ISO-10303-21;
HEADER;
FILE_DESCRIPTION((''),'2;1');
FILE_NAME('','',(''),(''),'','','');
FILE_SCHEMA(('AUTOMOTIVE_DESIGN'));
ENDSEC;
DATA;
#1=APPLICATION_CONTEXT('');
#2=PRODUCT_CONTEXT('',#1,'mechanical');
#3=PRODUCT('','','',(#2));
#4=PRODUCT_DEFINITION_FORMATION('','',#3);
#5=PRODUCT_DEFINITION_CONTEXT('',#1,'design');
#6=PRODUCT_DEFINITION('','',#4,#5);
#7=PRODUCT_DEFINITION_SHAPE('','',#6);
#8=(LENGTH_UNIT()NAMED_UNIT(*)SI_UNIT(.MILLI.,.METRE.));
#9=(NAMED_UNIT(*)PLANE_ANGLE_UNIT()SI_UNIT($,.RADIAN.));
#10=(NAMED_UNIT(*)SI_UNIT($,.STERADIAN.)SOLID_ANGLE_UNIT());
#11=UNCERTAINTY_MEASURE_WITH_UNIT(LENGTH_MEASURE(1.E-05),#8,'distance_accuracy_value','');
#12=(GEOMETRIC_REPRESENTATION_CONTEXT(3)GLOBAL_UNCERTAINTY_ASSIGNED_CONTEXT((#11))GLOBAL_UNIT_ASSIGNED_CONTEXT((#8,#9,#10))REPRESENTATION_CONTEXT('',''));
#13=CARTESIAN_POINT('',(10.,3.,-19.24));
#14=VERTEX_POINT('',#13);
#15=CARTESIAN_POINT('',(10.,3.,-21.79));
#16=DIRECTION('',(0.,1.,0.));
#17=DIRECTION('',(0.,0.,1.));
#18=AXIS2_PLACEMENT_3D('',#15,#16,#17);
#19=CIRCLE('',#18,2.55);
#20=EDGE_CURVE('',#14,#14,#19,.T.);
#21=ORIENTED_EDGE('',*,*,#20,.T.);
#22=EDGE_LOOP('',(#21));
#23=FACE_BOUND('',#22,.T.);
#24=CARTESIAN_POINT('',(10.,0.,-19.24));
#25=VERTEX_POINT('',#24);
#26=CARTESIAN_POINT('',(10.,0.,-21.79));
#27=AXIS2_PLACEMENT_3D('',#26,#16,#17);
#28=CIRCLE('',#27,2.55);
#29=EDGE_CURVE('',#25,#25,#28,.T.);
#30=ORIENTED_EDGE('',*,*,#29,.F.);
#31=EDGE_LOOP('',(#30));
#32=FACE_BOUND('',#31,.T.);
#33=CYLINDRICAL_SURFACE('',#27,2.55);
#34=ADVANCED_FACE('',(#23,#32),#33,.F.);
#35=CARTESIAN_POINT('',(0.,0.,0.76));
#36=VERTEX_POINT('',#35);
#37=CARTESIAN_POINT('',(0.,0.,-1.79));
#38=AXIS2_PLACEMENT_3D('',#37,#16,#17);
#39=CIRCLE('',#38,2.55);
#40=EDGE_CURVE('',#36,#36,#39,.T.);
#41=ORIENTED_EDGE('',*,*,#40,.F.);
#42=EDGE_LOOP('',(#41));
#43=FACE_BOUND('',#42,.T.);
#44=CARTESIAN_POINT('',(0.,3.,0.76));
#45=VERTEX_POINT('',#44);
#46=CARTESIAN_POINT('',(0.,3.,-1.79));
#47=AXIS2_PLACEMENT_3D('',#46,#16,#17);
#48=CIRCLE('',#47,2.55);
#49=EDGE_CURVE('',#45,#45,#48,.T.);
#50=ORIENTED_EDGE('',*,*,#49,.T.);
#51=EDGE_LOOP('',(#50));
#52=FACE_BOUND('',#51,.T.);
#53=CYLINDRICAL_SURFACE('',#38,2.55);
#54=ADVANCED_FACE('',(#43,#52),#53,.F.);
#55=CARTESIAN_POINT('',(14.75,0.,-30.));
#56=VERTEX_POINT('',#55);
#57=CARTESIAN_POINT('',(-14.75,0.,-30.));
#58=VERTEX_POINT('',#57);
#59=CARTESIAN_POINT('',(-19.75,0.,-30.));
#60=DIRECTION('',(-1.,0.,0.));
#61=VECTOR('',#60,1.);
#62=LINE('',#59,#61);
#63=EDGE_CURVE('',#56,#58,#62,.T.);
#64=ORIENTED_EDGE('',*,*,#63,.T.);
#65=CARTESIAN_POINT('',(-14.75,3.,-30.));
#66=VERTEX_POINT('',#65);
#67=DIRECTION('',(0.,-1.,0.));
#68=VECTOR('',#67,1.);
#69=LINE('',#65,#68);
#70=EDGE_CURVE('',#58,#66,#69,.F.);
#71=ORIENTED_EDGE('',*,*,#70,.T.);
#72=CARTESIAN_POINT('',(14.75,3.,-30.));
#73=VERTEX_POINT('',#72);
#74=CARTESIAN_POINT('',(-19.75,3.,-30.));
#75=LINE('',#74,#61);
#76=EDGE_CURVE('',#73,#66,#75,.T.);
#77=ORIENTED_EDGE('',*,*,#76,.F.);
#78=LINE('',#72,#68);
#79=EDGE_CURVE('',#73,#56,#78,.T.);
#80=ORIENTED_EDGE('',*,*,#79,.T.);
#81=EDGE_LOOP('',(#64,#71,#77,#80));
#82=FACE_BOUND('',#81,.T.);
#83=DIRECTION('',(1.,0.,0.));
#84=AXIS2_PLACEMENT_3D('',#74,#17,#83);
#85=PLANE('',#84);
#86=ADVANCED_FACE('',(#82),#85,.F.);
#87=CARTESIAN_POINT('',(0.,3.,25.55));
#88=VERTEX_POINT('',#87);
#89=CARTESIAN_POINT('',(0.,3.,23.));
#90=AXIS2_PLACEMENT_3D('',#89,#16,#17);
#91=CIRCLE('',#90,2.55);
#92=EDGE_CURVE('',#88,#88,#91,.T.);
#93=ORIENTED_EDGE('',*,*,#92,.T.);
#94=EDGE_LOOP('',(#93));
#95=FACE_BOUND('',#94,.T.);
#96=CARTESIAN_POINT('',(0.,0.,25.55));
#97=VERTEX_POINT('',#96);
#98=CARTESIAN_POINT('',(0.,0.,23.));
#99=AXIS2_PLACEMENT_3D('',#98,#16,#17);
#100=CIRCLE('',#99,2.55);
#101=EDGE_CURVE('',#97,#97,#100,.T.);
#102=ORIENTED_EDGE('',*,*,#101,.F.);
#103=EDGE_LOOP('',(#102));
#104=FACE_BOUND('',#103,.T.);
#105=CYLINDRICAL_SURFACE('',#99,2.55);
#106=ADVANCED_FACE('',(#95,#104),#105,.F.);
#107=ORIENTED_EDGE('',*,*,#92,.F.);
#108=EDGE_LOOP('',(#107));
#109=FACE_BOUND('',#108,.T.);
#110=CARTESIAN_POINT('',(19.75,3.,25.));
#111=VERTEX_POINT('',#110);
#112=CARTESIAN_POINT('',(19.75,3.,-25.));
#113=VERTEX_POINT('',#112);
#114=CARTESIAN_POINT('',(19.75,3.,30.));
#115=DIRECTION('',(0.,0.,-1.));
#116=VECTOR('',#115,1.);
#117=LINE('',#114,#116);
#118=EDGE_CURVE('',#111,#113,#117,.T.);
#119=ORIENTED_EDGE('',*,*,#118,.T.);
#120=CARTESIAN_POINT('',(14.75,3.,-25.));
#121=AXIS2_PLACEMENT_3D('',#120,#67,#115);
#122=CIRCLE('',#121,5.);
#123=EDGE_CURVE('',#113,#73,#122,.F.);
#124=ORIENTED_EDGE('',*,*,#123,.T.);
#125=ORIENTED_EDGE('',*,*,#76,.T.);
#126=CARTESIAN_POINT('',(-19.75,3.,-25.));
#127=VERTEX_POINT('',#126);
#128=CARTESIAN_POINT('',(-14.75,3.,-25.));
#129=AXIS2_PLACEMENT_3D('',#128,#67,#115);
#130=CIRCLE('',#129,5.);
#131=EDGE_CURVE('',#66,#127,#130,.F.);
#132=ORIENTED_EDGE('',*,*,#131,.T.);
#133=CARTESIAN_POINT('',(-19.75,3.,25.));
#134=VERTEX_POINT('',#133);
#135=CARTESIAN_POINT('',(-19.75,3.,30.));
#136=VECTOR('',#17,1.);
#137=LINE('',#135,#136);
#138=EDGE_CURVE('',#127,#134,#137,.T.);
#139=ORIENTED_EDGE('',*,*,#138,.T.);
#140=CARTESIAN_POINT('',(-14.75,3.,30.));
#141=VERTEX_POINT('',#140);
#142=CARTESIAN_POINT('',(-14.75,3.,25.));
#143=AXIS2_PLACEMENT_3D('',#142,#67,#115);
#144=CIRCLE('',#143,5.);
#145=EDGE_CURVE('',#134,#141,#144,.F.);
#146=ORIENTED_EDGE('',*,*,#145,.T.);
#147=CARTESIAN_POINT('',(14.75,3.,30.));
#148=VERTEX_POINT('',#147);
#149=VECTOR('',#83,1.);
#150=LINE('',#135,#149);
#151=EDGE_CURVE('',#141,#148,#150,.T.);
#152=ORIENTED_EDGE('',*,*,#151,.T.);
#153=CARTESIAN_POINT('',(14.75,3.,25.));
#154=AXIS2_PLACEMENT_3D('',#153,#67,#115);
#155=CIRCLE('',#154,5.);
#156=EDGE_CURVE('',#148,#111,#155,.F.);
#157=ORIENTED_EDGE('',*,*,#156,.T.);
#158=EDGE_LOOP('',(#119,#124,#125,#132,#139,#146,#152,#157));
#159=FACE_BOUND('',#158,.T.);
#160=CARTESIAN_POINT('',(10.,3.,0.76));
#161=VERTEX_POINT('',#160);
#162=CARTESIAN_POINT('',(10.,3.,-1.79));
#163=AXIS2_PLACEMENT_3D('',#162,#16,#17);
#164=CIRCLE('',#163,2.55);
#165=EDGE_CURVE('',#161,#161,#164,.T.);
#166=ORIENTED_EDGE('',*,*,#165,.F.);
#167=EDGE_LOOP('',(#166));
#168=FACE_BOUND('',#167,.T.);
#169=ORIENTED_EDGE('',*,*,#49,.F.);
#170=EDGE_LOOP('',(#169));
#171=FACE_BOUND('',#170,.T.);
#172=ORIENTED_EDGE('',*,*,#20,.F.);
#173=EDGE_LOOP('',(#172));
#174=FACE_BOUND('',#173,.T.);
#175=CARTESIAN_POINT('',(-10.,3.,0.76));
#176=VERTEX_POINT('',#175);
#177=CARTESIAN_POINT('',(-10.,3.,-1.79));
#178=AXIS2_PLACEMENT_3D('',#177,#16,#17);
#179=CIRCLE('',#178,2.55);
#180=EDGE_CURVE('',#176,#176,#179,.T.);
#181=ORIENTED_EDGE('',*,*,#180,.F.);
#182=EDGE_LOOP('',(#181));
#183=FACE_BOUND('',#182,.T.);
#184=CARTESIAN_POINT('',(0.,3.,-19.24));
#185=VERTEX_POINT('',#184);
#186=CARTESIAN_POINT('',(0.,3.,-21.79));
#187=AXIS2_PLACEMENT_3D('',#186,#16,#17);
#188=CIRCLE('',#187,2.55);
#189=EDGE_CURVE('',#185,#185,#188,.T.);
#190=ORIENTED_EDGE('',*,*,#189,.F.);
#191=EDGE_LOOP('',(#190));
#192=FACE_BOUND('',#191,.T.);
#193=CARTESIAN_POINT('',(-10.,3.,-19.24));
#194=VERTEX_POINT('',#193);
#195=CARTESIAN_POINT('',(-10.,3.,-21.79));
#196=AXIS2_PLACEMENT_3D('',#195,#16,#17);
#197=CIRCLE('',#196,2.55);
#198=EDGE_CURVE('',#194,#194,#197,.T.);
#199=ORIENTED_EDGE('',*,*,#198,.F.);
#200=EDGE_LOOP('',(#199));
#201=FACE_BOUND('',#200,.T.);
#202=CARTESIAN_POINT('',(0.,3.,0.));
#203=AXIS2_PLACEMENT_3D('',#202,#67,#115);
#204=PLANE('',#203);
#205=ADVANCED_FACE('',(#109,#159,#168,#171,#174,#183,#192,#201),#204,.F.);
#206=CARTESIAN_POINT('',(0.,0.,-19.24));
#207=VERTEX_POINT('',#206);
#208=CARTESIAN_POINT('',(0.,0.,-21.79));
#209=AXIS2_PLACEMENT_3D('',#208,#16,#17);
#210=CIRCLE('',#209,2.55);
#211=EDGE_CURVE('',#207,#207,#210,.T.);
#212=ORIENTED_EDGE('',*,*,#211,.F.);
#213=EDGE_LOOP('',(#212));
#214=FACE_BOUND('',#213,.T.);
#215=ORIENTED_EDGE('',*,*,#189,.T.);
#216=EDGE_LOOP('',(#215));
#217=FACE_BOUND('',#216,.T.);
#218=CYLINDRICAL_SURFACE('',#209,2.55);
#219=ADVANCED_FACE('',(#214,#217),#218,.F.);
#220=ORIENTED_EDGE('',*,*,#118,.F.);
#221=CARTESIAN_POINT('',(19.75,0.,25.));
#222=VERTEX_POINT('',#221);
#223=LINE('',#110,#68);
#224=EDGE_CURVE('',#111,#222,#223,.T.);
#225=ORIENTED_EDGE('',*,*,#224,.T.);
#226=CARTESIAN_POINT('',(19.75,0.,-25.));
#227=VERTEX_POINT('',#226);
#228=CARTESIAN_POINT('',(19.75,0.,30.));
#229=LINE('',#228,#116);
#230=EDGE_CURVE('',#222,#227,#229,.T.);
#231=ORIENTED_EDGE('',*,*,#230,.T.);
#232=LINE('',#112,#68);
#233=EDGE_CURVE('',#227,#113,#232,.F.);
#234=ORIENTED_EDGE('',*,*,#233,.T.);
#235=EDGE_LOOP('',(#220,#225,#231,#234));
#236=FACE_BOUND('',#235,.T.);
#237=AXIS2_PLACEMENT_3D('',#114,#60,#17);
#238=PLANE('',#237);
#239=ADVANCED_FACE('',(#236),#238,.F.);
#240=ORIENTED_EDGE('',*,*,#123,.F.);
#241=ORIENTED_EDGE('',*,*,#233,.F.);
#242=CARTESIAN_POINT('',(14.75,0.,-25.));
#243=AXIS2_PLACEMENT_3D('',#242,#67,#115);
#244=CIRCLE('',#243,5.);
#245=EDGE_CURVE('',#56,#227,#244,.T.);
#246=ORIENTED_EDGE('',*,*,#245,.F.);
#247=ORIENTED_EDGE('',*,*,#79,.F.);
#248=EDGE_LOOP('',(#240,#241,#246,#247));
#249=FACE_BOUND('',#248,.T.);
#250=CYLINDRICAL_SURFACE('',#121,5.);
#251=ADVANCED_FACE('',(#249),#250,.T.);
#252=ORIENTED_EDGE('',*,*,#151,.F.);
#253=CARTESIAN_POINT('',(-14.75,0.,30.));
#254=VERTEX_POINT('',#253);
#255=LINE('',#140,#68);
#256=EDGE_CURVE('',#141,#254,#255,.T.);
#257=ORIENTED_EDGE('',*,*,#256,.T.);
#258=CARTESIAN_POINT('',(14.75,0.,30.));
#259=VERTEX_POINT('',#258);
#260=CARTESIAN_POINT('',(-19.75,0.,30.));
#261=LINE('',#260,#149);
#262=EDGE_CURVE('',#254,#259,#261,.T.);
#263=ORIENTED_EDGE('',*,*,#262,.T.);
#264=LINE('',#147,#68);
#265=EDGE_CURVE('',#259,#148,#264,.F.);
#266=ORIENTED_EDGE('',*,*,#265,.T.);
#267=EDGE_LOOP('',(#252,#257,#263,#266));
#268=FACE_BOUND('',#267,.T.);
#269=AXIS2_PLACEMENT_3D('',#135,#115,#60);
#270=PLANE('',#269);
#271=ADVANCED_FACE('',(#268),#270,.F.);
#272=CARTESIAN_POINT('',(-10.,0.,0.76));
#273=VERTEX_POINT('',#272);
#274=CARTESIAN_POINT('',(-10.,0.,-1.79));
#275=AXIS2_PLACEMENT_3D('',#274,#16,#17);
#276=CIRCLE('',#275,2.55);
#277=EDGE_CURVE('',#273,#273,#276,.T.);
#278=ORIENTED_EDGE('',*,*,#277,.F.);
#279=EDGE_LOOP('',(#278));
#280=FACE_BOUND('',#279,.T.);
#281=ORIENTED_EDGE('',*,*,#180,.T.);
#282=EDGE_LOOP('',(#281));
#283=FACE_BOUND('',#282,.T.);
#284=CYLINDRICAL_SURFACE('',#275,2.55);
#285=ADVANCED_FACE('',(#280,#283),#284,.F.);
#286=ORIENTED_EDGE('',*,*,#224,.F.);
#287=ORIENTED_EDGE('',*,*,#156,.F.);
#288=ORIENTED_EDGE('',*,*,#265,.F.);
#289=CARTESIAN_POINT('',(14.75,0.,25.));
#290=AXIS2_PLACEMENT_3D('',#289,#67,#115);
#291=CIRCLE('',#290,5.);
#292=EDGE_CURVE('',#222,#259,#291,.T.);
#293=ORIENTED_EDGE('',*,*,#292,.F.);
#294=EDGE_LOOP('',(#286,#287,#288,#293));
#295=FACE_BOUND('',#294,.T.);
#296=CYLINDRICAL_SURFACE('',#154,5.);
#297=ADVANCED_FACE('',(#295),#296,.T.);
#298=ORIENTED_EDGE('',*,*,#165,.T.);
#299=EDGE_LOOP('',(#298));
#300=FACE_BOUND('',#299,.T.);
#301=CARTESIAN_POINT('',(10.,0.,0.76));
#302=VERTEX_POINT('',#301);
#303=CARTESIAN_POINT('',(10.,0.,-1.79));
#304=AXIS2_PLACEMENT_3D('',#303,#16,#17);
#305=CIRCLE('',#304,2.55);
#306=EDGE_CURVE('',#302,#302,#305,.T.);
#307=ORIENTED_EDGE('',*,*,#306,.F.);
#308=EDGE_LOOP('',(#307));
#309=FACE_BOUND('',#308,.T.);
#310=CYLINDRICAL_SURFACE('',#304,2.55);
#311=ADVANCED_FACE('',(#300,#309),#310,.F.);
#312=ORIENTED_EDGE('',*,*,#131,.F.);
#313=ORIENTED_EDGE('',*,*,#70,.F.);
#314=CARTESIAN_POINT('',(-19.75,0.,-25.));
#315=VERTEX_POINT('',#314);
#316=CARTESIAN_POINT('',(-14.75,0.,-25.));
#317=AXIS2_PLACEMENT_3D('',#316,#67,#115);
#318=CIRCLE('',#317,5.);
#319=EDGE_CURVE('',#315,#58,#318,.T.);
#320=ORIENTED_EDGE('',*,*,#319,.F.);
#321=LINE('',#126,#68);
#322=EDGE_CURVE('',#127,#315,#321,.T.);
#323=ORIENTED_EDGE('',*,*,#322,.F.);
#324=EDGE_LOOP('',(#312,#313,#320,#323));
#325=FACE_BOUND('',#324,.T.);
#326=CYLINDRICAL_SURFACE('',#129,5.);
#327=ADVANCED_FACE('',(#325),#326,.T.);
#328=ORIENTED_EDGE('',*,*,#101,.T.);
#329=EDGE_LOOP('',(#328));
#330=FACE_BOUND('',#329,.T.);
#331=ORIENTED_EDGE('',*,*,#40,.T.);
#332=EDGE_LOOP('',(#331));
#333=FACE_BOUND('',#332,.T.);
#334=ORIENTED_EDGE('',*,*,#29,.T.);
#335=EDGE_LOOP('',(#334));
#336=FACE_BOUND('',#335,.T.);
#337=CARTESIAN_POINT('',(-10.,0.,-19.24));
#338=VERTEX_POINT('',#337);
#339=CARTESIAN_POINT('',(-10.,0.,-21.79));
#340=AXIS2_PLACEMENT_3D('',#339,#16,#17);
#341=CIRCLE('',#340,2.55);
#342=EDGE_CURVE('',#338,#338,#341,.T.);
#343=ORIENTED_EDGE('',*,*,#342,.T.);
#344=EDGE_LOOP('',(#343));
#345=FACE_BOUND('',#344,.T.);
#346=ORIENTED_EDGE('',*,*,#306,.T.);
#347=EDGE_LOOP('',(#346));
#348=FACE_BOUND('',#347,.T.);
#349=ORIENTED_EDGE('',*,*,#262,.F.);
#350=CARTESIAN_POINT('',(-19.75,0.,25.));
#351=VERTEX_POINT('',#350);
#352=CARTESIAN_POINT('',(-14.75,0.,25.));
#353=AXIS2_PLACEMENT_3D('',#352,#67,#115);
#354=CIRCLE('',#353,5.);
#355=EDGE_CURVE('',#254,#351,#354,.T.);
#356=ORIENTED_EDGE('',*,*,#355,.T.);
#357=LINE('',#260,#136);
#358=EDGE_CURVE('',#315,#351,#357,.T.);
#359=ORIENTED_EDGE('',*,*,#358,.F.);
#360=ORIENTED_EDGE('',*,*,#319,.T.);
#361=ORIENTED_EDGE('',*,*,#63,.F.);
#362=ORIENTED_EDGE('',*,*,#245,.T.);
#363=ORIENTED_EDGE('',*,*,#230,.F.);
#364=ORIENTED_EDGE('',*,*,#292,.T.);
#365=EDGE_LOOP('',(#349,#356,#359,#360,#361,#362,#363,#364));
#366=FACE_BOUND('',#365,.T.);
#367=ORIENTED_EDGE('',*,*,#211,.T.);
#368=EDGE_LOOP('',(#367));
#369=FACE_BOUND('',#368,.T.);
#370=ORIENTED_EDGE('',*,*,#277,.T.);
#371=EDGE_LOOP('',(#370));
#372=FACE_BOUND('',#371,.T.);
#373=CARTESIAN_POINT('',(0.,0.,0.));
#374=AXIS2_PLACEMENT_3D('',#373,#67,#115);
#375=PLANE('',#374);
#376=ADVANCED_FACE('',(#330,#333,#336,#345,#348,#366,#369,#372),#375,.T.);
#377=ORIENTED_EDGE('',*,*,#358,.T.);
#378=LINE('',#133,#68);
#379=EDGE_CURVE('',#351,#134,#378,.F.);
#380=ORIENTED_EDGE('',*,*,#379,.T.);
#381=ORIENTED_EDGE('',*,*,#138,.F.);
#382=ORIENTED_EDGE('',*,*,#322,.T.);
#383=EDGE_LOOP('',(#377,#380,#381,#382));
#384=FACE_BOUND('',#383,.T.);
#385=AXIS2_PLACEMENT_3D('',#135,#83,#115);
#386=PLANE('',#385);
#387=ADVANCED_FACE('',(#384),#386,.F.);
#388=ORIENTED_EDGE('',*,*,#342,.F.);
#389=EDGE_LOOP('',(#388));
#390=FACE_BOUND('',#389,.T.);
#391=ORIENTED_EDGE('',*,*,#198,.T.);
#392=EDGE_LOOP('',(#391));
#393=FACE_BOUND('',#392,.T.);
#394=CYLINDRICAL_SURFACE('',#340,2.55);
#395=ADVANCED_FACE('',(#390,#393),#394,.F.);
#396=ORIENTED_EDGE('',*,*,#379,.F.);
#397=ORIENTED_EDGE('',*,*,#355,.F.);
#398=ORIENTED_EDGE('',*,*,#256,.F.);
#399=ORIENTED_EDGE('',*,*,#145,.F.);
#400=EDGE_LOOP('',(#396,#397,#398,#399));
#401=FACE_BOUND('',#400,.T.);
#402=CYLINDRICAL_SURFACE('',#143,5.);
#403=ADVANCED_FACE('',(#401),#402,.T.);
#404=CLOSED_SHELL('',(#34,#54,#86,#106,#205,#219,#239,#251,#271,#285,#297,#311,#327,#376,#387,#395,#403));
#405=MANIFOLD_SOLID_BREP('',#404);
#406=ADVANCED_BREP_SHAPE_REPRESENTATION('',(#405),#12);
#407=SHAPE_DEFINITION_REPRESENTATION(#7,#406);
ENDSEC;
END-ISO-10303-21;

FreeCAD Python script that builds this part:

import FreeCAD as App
import Part
import Sketcher

V = App.Vector
Q = App.Units.Quantity


def edges_at(feature, points):
    """Names of the edges that pass closest to the given points."""
    edges = feature.Shape.Edges
    near = lambda p: min(range(len(edges)), key=lambda i: edges[i].distToShape(Part.Vertex(*p))[0])
    return sorted({f"Edge{near(p) + 1}" for p in points})


def add_polygon(sketch, points):
    """Adds a closed chain of lines whose ends are joined by coincident constraints."""
    first, n = sketch.GeometryCount, len(points)
    for a, b in zip(points, points[1:] + points[:1]):
        sketch.addGeometry(Part.LineSegment(App.Vector(*a, 0), App.Vector(*b, 0)), False)
    for i in range(n):
        sketch.addConstraint(Sketcher.Constraint("Coincident", first + i, 2, first + (i + 1) % n, 1))

doc = App.newDocument("Part")
body = doc.addObject("PartDesign::Body", "Body")

sketch1 = body.newObject("Sketcher::SketchObject", "Sketch")
sketch1.AttachmentSupport = (doc.getObject("XZ_Plane"), [""])
sketch1.MapMode = "FlatFace"
add_polygon(sketch1, [(-20, -30), (-20, 30), (20, 30), (20, -30)])
sketch1.addConstraint([
    Sketcher.Constraint("Vertical", 0),
    Sketcher.Constraint("Horizontal", 1),
    Sketcher.Constraint("Vertical", 2),
    Sketcher.Constraint("Horizontal", 3),
    Sketcher.Constraint("Symmetric", 0, 2, 2, 2, -1, 1),
    Sketcher.Constraint("DistanceY", 0, 1, 0, 2, Q("60 mm")),
    Sketcher.Constraint("DistanceX", 1, 1, 1, 2, Q("39.5 mm")),
])
pad1 = body.newObject("PartDesign::Pad", "Pad")
pad1.Profile = sketch1
pad1.Length = 3
pad1.Reversed = True

sketch2 = body.newObject("Sketcher::SketchObject", "Sketch001")
sketch2.AttachmentSupport = (doc.getObject("XZ_Plane"), [""])
sketch2.MapMode = "FlatFace"
sketch2.AttachmentOffset = App.Placement(V(0, 0, -3), App.Rotation())
sketch2.addGeometry(Part.Circle(V(0, -21.8, 0), V(0, 0, 1), 2.5), False)
sketch2.addConstraint([
    Sketcher.Constraint("PointOnObject", 0, 3, -2),
    Sketcher.Constraint("Diameter", 0, Q("5.1 mm")),
    Sketcher.Constraint("DistanceY", 0, 3, -1, 1, Q("21.79 mm")),
])
pocket1 = body.newObject("PartDesign::Pocket", "Pocket")
pocket1.Profile = sketch2
pocket1.Type = "ThroughAll"
pocket1.Reversed = True

sketch3 = body.newObject("Sketcher::SketchObject", "Sketch002")
sketch3.AttachmentSupport = (doc.getObject("XZ_Plane"), [""])
sketch3.MapMode = "FlatFace"
sketch3.AttachmentOffset = App.Placement(V(0, 0, -3), App.Rotation())
sketch3.addGeometry(Part.Circle(V(0, 23, 0), V(0, 0, 1), 2.5), False)
sketch3.addConstraint([
    Sketcher.Constraint("PointOnObject", 0, 3, -2),
    Sketcher.Constraint("Diameter", 0, Q("5.1 mm")),
    Sketcher.Constraint("DistanceY", -1, 1, 0, 3, Q("23 mm")),
])
pocket2 = body.newObject("PartDesign::Pocket", "Pocket001")
pocket2.Profile = sketch3
pocket2.Type = "ThroughAll"
pocket2.Reversed = True
doc.recompute()

linearpattern = body.newObject("PartDesign::LinearPattern", "LinearPattern")
linearpattern.Originals = [pocket1]
linearpattern.Direction = (doc.getObject("X_Axis"), [""])
linearpattern.Mode = "offset"
linearpattern.Offset = 10
linearpattern.Occurrences = 2
linearpattern.Reversed = True
body.Tip = linearpattern
doc.recompute()

linearpattern2 = body.newObject("PartDesign::LinearPattern", "LinearPattern001")
linearpattern2.Originals = [pocket1]
linearpattern2.Direction = (doc.getObject("X_Axis"), [""])
linearpattern2.Mode = "offset"
linearpattern2.Offset = 10
linearpattern2.Occurrences = 2
body.Tip = linearpattern2
doc.recompute()

linearpattern3 = body.newObject("PartDesign::LinearPattern", "LinearPattern002")
linearpattern3.Originals = [pocket1]
linearpattern3.Direction = (doc.getObject("Z_Axis"), [""])
linearpattern3.Mode = "offset"
linearpattern3.Offset = 20
linearpattern3.Occurrences = 2
body.Tip = linearpattern3

sketch4 = body.newObject("Sketcher::SketchObject", "Sketch003")
sketch4.AttachmentSupport = (doc.getObject("XZ_Plane"), [""])
sketch4.MapMode = "FlatFace"
sketch4.AttachmentOffset = App.Placement(V(0, 0, -3), App.Rotation())
sketch4.addGeometry(Part.Circle(V(-10, -1.8, 0), V(0, 0, 1), 2.5), False)
sketch4.addConstraint([
    Sketcher.Constraint("Diameter", 0, Q("5.1 mm")),
    Sketcher.Constraint("DistanceX", 0, 3, -1, 1, Q("10 mm")),
    Sketcher.Constraint("DistanceY", 0, 3, -1, 1, Q("1.79 mm")),
])
pocket3 = body.newObject("PartDesign::Pocket", "Pocket002")
pocket3.Profile = sketch4
pocket3.Type = "ThroughAll"
pocket3.Reversed = True

sketch5 = body.newObject("Sketcher::SketchObject", "Sketch004")
sketch5.AttachmentSupport = (doc.getObject("XZ_Plane"), [""])
sketch5.MapMode = "FlatFace"
sketch5.AttachmentOffset = App.Placement(V(0, 0, -3), App.Rotation())
sketch5.addGeometry(Part.Circle(V(10, -1.8, 0), V(0, 0, 1), 2.5), False)
sketch5.addConstraint([
    Sketcher.Constraint("Diameter", 0, Q("5.1 mm")),
    Sketcher.Constraint("DistanceX", -1, 1, 0, 3, Q("10 mm")),
    Sketcher.Constraint("DistanceY", 0, 3, -1, 1, Q("1.79 mm")),
])
pocket4 = body.newObject("PartDesign::Pocket", "Pocket003")
pocket4.Profile = sketch5
pocket4.Type = "ThroughAll"
pocket4.Reversed = True
doc.recompute()

fillet = body.newObject("PartDesign::Fillet", "Fillet")
fillet.Base = (pocket4, edges_at(pocket4, [(-19.75, 1.5, 30)]))
fillet.Radius = 5
doc.recompute()

fillet2 = body.newObject("PartDesign::Fillet", "Fillet001")
fillet2.Base = (fillet, edges_at(fillet, [(19.75, 1.5, -30)]))
fillet2.Radius = 5
doc.recompute()

fillet3 = body.newObject("PartDesign::Fillet", "Fillet002")
fillet3.Base = (fillet2, edges_at(fillet2, [(19.75, 1.5, 30)]))
fillet3.Radius = 5
doc.recompute()

fillet4 = body.newObject("PartDesign::Fillet", "Fillet003")
fillet4.Base = (fillet3, edges_at(fillet3, [(-19.75, 1.5, -30)]))
fillet4.Radius = 5

doc.recompute()
